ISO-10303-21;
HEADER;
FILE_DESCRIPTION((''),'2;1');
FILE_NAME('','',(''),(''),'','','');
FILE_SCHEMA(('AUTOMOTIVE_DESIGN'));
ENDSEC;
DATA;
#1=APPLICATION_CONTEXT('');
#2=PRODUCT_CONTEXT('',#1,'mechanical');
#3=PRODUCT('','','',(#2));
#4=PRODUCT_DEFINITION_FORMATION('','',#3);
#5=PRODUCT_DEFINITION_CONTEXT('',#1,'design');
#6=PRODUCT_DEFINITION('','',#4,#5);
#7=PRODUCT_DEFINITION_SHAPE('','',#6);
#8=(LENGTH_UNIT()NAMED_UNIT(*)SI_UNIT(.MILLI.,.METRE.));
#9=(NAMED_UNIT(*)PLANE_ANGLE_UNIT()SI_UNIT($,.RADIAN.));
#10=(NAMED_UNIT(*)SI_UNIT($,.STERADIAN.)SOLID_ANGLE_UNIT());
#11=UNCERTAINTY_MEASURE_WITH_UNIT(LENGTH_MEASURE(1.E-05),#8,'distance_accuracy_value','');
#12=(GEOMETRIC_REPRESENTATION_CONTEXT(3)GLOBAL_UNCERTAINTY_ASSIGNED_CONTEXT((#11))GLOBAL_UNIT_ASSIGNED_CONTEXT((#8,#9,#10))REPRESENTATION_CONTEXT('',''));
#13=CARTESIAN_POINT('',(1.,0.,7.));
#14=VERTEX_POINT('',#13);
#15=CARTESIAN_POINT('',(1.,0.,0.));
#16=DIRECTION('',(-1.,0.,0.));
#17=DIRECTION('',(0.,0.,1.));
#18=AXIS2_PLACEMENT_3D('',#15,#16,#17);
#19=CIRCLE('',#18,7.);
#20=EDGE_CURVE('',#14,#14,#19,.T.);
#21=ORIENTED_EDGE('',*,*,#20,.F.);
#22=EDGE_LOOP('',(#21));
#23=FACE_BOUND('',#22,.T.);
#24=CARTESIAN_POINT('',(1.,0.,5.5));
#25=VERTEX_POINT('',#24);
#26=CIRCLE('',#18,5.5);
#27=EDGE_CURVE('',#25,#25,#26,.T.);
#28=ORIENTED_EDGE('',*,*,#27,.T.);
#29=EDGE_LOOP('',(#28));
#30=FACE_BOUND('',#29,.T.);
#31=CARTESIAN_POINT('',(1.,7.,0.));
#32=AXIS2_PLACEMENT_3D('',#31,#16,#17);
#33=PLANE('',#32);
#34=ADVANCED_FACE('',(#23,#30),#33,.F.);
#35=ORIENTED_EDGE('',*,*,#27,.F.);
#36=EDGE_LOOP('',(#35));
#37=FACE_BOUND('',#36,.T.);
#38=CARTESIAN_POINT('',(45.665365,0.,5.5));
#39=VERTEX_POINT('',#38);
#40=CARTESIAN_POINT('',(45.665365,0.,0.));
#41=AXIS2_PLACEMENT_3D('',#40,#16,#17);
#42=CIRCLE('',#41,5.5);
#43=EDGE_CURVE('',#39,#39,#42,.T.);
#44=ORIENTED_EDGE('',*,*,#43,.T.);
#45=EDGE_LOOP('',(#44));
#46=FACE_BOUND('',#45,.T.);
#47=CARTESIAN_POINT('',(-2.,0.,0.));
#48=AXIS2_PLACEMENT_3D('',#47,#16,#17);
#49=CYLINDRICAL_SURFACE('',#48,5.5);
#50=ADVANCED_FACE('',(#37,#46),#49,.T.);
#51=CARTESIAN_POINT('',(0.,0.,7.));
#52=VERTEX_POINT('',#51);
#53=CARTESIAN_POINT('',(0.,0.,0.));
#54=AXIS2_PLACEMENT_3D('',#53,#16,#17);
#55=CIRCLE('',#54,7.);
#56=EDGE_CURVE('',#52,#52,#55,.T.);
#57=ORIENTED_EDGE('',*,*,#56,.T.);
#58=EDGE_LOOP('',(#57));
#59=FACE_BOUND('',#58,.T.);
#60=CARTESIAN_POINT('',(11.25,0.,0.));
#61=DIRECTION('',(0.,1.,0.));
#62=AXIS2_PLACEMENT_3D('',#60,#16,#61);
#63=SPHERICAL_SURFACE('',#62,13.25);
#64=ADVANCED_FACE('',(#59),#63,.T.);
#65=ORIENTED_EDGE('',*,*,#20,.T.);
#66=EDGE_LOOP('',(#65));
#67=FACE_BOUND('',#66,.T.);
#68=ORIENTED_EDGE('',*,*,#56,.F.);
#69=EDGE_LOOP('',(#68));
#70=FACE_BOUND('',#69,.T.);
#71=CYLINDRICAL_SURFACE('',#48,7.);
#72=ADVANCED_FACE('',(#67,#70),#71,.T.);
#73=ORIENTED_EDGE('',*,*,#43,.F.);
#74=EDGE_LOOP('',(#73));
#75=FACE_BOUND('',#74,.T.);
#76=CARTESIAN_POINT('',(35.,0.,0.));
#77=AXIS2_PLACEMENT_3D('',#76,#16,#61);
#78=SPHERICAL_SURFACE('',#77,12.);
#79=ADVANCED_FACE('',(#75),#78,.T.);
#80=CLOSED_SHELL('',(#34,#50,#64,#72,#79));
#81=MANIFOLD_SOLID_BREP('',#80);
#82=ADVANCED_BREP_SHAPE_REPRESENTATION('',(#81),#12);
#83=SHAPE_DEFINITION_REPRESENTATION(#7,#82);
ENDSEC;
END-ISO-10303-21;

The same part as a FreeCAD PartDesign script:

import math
import FreeCAD as App
import Part
import Sketcher
Q = App.Units.Quantity

doc = App.newDocument("Part")
params = doc.addObject("Spreadsheet::Sheet", "Params")
for row, (alias, value) in enumerate([
    ("sketch1_radius", "12 mm"),
    ("sketch1_width", "1 mm"),
    ("sketch1_width2", "49 mm"),
    ("sketch1_radius2", "13.25 mm"),
    ("sketch1_height", "1.5 mm"),
    ("revolution_angle", "360 deg"),
], start=1):
    params.set(f"A{row}", alias)
    params.set(f"B{row}", "=" + value)
    params.setAlias(f"B{row}", alias)

body = doc.addObject("PartDesign::Body", "Body")

# Sketch on XY plane
sketch1 = doc.addObject("Sketcher::SketchObject", "Sketch")
body.addObject(sketch1)
sketch1.AttachmentSupport = (doc.XY_Plane, [""])
sketch1.MapMode = "FlatFace"
sketch1.addGeometry(Part.LineSegment(App.Vector(1, 7, 0), App.Vector(0, 7, 0)), False)
sketch1.addGeometry(Part.ArcOfCircle(Part.Circle(App.Vector(11.3, 0, 0), App.Vector(0, 0, 1), 13.3), math.radians(148), math.radians(180)), False)
sketch1.addGeometry(Part.LineSegment(App.Vector(-2, 0, 0), App.Vector(47, 0, 0)), False)
sketch1.addGeometry(Part.ArcOfCircle(Part.Circle(App.Vector(35, 0, 0), App.Vector(0, 0, 1), 12), math.radians(0), math.radians(27)), False)
sketch1.addGeometry(Part.LineSegment(App.Vector(45.7, 5.5, 0), App.Vector(1, 5.5, 0)), False)
sketch1.addGeometry(Part.LineSegment(App.Vector(1, 5.5, 0), App.Vector(1, 7, 0)), False)
sketch1.addConstraint(Sketcher.Constraint("Coincident", 0, 2, 1, 1))
sketch1.addConstraint(Sketcher.Constraint("Coincident", 1, 2, 2, 1))
sketch1.addConstraint(Sketcher.Constraint("Coincident", 2, 2, 3, 1))
sketch1.addConstraint(Sketcher.Constraint("Coincident", 3, 2, 4, 1))
sketch1.addConstraint(Sketcher.Constraint("Coincident", 4, 2, 5, 1))
sketch1.addConstraint(Sketcher.Constraint("Coincident", 5, 2, 0, 1))
sketch1.addConstraint(Sketcher.Constraint("Horizontal", 0))
sketch1.addConstraint(Sketcher.Constraint("Horizontal", 2))
sketch1.addConstraint(Sketcher.Constraint("Horizontal", 4))
sketch1.addConstraint(Sketcher.Constraint("Vertical", 5))
sketch1.addConstraint(Sketcher.Constraint("PointOnObject", 1, 3, -1))
sketch1.addConstraint(Sketcher.Constraint("PointOnObject", 3, 3, -1))
sketch1.addConstraint(Sketcher.Constraint("PointOnObject", 0, 2, -2))
sketch1.addConstraint(Sketcher.Constraint("PointOnObject", 1, 2, -1))
sketch1.addConstraint(Sketcher.Constraint("Radius", 3, Q("12 mm")))
sketch1.addConstraint(Sketcher.Constraint("DistanceX", 0, 2, 0, 1, Q("1 mm")))
sketch1.addConstraint(Sketcher.Constraint("DistanceX", 2, 1, 2, 2, Q("49 mm")))
sketch1.addConstraint(Sketcher.Constraint("Radius", 1, Q("13.25 mm")))
sketch1.addConstraint(Sketcher.Constraint("DistanceY", 5, 1, 5, 2, Q("1.5 mm")))
sketch1.addConstraint(Sketcher.Constraint("DistanceX", -1, 1, 3, 3, Q("35 mm")))
sketch1.setExpression("Constraints[14]", "Params.sketch1_radius")
sketch1.setExpression("Constraints[15]", "Params.sketch1_width")
sketch1.setExpression("Constraints[16]", "Params.sketch1_width2")
sketch1.setExpression("Constraints[17]", "Params.sketch1_radius2")
sketch1.setExpression("Constraints[18]", "Params.sketch1_height")
revolution = doc.addObject("PartDesign::Revolution", "Revolution")
body.addObject(revolution)
revolution.Profile = sketch1
revolution.ReferenceAxis = (sketch1, ["H_Axis"])
revolution.setExpression("Angle", "Params.revolution_angle")

doc.recompute()
